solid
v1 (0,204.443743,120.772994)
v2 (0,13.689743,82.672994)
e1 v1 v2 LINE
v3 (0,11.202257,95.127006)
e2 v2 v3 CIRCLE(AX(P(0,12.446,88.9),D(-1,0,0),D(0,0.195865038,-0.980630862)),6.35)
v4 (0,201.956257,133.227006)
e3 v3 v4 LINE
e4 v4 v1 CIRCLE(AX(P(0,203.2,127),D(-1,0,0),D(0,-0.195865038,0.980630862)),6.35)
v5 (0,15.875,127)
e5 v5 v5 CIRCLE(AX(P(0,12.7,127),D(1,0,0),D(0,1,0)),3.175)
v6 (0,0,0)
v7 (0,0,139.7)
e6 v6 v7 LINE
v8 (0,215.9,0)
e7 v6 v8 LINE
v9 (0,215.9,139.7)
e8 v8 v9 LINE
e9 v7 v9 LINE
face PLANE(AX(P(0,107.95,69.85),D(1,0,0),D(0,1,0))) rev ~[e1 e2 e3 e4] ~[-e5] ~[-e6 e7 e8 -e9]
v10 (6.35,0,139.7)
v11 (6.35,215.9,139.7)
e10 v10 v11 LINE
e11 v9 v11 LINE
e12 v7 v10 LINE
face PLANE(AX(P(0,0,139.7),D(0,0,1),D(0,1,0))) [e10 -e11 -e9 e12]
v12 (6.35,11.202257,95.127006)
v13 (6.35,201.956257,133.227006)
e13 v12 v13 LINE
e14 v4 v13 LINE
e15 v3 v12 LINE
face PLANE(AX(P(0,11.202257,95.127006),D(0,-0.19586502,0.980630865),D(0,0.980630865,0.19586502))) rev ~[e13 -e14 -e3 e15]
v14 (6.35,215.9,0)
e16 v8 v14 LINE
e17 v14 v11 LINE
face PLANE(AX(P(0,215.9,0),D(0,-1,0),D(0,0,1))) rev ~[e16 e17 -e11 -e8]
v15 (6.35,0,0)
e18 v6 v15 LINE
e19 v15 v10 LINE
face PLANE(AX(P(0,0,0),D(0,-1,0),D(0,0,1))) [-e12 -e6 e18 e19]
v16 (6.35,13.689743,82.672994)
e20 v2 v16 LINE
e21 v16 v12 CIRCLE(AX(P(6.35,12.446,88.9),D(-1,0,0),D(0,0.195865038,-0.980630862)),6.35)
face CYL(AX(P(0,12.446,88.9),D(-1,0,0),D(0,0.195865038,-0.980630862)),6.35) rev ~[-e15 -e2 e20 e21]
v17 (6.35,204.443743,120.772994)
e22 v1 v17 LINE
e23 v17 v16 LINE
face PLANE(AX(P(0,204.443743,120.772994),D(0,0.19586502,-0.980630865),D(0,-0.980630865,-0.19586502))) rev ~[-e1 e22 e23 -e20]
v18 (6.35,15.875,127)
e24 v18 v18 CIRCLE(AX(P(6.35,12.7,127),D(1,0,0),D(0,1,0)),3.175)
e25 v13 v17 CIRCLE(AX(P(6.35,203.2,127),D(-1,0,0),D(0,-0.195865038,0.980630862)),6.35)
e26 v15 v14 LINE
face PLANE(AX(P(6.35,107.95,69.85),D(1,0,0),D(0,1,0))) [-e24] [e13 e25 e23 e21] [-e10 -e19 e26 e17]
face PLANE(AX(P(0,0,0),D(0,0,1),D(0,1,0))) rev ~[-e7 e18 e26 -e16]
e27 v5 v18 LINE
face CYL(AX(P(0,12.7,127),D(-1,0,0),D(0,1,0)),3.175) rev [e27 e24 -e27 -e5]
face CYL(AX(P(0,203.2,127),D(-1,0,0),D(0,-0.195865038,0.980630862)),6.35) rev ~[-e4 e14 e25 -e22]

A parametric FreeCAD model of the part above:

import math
import FreeCAD as App
import Part
import Sketcher
Q = App.Units.Quantity

doc = App.newDocument("Part")
body = doc.addObject("PartDesign::Body", "Body")

# Sketch on YZ plane
sketch1 = doc.addObject("Sketcher::SketchObject", "Sketch")
body.addObject(sketch1)
sketch1.AttachmentSupport = (doc.YZ_Plane, [""])
sketch1.MapMode = "FlatFace"
sketch1.addGeometry([
    Part.LineSegment(App.Vector(0, 139.7, 0), App.Vector(0, 0, 0)),  # 0
    Part.LineSegment(App.Vector(0, 0, 0), App.Vector(215.9, 0, 0)),  # 1
    Part.LineSegment(App.Vector(215.9, 0, 0), App.Vector(215.9, 139.7, 0)),  # 2
    Part.LineSegment(App.Vector(215.9, 139.7, 0), App.Vector(0, 139.7, 0)),  # 3
    Part.ArcOfCircle(Part.Circle(App.Vector(203.2, 127, 0), App.Vector(0, 0, 1), 6.35), math.radians(-78.704739), math.radians(101.295261)),  # 4
    Part.LineSegment(App.Vector(204.443743, 120.772994, 0), App.Vector(13.689743, 82.672994, 0)),  # 5
    Part.ArcOfCircle(Part.Circle(App.Vector(12.446, 88.9, 0), App.Vector(0, 0, 1), 6.35), math.radians(101.295261), math.radians(281.295261)),  # 6
    Part.LineSegment(App.Vector(11.202257, 95.127006, 0), App.Vector(201.956257, 133.227006, 0)),  # 7
    Part.Circle(App.Vector(12.7, 127, 0), App.Vector(0, 0, 1), 3.175),  # 8
], False)
sketch1.addConstraint([
    Sketcher.Constraint("Coincident", 0, 2, 1, 1),
    Sketcher.Constraint("Coincident", 1, 2, 2, 1),
    Sketcher.Constraint("Coincident", 2, 2, 3, 1),
    Sketcher.Constraint("Coincident", 3, 2, 0, 1),
    Sketcher.Constraint("Tangent", 4, 1, 5, 1),
    Sketcher.Constraint("Tangent", 5, 2, 6, 2),
    Sketcher.Constraint("Tangent", 6, 1, 7, 1),
    Sketcher.Constraint("Tangent", 7, 2, 4, 2),
    Sketcher.Constraint("Vertical", 0),
    Sketcher.Constraint("Horizontal", 1),
    Sketcher.Constraint("Vertical", 2),
    Sketcher.Constraint("Horizontal", 3),
    Sketcher.Constraint("Coincident", 0, 2, -1, 1),
    Sketcher.Constraint("Equal", 4, 6),
    Sketcher.Constraint("Horizontal", 4, 3, 8, 3),
    Sketcher.Constraint("Diameter", 8, Q("0.25 in")),
    Sketcher.Constraint("Radius", 4, Q("0.25 in")),
    Sketcher.Constraint("DistanceX", 1, 1, 1, 2, Q("8.5 in")),
    Sketcher.Constraint("DistanceY", 0, 2, 0, 1, Q("5.5 in")),
    Sketcher.Constraint("DistanceX", -1, 1, 4, 3, Q("8 in")),
    Sketcher.Constraint("DistanceY", -1, 1, 4, 3, Q("5 in")),
    Sketcher.Constraint("DistanceX", 8, 3, 1, 2, Q("8 in")),
    Sketcher.Constraint("DistanceY", 6, 3, 2, 2, Q("2 in")),
    Sketcher.Constraint("DistanceX", -1, 1, 6, 3, Q("0.49 in")),
])
pad1 = doc.addObject("PartDesign::Pad", "Pad")
body.addObject(pad1)
pad1.Profile = sketch1
pad1.Length = Q("0.25 in")

doc.recompute()
